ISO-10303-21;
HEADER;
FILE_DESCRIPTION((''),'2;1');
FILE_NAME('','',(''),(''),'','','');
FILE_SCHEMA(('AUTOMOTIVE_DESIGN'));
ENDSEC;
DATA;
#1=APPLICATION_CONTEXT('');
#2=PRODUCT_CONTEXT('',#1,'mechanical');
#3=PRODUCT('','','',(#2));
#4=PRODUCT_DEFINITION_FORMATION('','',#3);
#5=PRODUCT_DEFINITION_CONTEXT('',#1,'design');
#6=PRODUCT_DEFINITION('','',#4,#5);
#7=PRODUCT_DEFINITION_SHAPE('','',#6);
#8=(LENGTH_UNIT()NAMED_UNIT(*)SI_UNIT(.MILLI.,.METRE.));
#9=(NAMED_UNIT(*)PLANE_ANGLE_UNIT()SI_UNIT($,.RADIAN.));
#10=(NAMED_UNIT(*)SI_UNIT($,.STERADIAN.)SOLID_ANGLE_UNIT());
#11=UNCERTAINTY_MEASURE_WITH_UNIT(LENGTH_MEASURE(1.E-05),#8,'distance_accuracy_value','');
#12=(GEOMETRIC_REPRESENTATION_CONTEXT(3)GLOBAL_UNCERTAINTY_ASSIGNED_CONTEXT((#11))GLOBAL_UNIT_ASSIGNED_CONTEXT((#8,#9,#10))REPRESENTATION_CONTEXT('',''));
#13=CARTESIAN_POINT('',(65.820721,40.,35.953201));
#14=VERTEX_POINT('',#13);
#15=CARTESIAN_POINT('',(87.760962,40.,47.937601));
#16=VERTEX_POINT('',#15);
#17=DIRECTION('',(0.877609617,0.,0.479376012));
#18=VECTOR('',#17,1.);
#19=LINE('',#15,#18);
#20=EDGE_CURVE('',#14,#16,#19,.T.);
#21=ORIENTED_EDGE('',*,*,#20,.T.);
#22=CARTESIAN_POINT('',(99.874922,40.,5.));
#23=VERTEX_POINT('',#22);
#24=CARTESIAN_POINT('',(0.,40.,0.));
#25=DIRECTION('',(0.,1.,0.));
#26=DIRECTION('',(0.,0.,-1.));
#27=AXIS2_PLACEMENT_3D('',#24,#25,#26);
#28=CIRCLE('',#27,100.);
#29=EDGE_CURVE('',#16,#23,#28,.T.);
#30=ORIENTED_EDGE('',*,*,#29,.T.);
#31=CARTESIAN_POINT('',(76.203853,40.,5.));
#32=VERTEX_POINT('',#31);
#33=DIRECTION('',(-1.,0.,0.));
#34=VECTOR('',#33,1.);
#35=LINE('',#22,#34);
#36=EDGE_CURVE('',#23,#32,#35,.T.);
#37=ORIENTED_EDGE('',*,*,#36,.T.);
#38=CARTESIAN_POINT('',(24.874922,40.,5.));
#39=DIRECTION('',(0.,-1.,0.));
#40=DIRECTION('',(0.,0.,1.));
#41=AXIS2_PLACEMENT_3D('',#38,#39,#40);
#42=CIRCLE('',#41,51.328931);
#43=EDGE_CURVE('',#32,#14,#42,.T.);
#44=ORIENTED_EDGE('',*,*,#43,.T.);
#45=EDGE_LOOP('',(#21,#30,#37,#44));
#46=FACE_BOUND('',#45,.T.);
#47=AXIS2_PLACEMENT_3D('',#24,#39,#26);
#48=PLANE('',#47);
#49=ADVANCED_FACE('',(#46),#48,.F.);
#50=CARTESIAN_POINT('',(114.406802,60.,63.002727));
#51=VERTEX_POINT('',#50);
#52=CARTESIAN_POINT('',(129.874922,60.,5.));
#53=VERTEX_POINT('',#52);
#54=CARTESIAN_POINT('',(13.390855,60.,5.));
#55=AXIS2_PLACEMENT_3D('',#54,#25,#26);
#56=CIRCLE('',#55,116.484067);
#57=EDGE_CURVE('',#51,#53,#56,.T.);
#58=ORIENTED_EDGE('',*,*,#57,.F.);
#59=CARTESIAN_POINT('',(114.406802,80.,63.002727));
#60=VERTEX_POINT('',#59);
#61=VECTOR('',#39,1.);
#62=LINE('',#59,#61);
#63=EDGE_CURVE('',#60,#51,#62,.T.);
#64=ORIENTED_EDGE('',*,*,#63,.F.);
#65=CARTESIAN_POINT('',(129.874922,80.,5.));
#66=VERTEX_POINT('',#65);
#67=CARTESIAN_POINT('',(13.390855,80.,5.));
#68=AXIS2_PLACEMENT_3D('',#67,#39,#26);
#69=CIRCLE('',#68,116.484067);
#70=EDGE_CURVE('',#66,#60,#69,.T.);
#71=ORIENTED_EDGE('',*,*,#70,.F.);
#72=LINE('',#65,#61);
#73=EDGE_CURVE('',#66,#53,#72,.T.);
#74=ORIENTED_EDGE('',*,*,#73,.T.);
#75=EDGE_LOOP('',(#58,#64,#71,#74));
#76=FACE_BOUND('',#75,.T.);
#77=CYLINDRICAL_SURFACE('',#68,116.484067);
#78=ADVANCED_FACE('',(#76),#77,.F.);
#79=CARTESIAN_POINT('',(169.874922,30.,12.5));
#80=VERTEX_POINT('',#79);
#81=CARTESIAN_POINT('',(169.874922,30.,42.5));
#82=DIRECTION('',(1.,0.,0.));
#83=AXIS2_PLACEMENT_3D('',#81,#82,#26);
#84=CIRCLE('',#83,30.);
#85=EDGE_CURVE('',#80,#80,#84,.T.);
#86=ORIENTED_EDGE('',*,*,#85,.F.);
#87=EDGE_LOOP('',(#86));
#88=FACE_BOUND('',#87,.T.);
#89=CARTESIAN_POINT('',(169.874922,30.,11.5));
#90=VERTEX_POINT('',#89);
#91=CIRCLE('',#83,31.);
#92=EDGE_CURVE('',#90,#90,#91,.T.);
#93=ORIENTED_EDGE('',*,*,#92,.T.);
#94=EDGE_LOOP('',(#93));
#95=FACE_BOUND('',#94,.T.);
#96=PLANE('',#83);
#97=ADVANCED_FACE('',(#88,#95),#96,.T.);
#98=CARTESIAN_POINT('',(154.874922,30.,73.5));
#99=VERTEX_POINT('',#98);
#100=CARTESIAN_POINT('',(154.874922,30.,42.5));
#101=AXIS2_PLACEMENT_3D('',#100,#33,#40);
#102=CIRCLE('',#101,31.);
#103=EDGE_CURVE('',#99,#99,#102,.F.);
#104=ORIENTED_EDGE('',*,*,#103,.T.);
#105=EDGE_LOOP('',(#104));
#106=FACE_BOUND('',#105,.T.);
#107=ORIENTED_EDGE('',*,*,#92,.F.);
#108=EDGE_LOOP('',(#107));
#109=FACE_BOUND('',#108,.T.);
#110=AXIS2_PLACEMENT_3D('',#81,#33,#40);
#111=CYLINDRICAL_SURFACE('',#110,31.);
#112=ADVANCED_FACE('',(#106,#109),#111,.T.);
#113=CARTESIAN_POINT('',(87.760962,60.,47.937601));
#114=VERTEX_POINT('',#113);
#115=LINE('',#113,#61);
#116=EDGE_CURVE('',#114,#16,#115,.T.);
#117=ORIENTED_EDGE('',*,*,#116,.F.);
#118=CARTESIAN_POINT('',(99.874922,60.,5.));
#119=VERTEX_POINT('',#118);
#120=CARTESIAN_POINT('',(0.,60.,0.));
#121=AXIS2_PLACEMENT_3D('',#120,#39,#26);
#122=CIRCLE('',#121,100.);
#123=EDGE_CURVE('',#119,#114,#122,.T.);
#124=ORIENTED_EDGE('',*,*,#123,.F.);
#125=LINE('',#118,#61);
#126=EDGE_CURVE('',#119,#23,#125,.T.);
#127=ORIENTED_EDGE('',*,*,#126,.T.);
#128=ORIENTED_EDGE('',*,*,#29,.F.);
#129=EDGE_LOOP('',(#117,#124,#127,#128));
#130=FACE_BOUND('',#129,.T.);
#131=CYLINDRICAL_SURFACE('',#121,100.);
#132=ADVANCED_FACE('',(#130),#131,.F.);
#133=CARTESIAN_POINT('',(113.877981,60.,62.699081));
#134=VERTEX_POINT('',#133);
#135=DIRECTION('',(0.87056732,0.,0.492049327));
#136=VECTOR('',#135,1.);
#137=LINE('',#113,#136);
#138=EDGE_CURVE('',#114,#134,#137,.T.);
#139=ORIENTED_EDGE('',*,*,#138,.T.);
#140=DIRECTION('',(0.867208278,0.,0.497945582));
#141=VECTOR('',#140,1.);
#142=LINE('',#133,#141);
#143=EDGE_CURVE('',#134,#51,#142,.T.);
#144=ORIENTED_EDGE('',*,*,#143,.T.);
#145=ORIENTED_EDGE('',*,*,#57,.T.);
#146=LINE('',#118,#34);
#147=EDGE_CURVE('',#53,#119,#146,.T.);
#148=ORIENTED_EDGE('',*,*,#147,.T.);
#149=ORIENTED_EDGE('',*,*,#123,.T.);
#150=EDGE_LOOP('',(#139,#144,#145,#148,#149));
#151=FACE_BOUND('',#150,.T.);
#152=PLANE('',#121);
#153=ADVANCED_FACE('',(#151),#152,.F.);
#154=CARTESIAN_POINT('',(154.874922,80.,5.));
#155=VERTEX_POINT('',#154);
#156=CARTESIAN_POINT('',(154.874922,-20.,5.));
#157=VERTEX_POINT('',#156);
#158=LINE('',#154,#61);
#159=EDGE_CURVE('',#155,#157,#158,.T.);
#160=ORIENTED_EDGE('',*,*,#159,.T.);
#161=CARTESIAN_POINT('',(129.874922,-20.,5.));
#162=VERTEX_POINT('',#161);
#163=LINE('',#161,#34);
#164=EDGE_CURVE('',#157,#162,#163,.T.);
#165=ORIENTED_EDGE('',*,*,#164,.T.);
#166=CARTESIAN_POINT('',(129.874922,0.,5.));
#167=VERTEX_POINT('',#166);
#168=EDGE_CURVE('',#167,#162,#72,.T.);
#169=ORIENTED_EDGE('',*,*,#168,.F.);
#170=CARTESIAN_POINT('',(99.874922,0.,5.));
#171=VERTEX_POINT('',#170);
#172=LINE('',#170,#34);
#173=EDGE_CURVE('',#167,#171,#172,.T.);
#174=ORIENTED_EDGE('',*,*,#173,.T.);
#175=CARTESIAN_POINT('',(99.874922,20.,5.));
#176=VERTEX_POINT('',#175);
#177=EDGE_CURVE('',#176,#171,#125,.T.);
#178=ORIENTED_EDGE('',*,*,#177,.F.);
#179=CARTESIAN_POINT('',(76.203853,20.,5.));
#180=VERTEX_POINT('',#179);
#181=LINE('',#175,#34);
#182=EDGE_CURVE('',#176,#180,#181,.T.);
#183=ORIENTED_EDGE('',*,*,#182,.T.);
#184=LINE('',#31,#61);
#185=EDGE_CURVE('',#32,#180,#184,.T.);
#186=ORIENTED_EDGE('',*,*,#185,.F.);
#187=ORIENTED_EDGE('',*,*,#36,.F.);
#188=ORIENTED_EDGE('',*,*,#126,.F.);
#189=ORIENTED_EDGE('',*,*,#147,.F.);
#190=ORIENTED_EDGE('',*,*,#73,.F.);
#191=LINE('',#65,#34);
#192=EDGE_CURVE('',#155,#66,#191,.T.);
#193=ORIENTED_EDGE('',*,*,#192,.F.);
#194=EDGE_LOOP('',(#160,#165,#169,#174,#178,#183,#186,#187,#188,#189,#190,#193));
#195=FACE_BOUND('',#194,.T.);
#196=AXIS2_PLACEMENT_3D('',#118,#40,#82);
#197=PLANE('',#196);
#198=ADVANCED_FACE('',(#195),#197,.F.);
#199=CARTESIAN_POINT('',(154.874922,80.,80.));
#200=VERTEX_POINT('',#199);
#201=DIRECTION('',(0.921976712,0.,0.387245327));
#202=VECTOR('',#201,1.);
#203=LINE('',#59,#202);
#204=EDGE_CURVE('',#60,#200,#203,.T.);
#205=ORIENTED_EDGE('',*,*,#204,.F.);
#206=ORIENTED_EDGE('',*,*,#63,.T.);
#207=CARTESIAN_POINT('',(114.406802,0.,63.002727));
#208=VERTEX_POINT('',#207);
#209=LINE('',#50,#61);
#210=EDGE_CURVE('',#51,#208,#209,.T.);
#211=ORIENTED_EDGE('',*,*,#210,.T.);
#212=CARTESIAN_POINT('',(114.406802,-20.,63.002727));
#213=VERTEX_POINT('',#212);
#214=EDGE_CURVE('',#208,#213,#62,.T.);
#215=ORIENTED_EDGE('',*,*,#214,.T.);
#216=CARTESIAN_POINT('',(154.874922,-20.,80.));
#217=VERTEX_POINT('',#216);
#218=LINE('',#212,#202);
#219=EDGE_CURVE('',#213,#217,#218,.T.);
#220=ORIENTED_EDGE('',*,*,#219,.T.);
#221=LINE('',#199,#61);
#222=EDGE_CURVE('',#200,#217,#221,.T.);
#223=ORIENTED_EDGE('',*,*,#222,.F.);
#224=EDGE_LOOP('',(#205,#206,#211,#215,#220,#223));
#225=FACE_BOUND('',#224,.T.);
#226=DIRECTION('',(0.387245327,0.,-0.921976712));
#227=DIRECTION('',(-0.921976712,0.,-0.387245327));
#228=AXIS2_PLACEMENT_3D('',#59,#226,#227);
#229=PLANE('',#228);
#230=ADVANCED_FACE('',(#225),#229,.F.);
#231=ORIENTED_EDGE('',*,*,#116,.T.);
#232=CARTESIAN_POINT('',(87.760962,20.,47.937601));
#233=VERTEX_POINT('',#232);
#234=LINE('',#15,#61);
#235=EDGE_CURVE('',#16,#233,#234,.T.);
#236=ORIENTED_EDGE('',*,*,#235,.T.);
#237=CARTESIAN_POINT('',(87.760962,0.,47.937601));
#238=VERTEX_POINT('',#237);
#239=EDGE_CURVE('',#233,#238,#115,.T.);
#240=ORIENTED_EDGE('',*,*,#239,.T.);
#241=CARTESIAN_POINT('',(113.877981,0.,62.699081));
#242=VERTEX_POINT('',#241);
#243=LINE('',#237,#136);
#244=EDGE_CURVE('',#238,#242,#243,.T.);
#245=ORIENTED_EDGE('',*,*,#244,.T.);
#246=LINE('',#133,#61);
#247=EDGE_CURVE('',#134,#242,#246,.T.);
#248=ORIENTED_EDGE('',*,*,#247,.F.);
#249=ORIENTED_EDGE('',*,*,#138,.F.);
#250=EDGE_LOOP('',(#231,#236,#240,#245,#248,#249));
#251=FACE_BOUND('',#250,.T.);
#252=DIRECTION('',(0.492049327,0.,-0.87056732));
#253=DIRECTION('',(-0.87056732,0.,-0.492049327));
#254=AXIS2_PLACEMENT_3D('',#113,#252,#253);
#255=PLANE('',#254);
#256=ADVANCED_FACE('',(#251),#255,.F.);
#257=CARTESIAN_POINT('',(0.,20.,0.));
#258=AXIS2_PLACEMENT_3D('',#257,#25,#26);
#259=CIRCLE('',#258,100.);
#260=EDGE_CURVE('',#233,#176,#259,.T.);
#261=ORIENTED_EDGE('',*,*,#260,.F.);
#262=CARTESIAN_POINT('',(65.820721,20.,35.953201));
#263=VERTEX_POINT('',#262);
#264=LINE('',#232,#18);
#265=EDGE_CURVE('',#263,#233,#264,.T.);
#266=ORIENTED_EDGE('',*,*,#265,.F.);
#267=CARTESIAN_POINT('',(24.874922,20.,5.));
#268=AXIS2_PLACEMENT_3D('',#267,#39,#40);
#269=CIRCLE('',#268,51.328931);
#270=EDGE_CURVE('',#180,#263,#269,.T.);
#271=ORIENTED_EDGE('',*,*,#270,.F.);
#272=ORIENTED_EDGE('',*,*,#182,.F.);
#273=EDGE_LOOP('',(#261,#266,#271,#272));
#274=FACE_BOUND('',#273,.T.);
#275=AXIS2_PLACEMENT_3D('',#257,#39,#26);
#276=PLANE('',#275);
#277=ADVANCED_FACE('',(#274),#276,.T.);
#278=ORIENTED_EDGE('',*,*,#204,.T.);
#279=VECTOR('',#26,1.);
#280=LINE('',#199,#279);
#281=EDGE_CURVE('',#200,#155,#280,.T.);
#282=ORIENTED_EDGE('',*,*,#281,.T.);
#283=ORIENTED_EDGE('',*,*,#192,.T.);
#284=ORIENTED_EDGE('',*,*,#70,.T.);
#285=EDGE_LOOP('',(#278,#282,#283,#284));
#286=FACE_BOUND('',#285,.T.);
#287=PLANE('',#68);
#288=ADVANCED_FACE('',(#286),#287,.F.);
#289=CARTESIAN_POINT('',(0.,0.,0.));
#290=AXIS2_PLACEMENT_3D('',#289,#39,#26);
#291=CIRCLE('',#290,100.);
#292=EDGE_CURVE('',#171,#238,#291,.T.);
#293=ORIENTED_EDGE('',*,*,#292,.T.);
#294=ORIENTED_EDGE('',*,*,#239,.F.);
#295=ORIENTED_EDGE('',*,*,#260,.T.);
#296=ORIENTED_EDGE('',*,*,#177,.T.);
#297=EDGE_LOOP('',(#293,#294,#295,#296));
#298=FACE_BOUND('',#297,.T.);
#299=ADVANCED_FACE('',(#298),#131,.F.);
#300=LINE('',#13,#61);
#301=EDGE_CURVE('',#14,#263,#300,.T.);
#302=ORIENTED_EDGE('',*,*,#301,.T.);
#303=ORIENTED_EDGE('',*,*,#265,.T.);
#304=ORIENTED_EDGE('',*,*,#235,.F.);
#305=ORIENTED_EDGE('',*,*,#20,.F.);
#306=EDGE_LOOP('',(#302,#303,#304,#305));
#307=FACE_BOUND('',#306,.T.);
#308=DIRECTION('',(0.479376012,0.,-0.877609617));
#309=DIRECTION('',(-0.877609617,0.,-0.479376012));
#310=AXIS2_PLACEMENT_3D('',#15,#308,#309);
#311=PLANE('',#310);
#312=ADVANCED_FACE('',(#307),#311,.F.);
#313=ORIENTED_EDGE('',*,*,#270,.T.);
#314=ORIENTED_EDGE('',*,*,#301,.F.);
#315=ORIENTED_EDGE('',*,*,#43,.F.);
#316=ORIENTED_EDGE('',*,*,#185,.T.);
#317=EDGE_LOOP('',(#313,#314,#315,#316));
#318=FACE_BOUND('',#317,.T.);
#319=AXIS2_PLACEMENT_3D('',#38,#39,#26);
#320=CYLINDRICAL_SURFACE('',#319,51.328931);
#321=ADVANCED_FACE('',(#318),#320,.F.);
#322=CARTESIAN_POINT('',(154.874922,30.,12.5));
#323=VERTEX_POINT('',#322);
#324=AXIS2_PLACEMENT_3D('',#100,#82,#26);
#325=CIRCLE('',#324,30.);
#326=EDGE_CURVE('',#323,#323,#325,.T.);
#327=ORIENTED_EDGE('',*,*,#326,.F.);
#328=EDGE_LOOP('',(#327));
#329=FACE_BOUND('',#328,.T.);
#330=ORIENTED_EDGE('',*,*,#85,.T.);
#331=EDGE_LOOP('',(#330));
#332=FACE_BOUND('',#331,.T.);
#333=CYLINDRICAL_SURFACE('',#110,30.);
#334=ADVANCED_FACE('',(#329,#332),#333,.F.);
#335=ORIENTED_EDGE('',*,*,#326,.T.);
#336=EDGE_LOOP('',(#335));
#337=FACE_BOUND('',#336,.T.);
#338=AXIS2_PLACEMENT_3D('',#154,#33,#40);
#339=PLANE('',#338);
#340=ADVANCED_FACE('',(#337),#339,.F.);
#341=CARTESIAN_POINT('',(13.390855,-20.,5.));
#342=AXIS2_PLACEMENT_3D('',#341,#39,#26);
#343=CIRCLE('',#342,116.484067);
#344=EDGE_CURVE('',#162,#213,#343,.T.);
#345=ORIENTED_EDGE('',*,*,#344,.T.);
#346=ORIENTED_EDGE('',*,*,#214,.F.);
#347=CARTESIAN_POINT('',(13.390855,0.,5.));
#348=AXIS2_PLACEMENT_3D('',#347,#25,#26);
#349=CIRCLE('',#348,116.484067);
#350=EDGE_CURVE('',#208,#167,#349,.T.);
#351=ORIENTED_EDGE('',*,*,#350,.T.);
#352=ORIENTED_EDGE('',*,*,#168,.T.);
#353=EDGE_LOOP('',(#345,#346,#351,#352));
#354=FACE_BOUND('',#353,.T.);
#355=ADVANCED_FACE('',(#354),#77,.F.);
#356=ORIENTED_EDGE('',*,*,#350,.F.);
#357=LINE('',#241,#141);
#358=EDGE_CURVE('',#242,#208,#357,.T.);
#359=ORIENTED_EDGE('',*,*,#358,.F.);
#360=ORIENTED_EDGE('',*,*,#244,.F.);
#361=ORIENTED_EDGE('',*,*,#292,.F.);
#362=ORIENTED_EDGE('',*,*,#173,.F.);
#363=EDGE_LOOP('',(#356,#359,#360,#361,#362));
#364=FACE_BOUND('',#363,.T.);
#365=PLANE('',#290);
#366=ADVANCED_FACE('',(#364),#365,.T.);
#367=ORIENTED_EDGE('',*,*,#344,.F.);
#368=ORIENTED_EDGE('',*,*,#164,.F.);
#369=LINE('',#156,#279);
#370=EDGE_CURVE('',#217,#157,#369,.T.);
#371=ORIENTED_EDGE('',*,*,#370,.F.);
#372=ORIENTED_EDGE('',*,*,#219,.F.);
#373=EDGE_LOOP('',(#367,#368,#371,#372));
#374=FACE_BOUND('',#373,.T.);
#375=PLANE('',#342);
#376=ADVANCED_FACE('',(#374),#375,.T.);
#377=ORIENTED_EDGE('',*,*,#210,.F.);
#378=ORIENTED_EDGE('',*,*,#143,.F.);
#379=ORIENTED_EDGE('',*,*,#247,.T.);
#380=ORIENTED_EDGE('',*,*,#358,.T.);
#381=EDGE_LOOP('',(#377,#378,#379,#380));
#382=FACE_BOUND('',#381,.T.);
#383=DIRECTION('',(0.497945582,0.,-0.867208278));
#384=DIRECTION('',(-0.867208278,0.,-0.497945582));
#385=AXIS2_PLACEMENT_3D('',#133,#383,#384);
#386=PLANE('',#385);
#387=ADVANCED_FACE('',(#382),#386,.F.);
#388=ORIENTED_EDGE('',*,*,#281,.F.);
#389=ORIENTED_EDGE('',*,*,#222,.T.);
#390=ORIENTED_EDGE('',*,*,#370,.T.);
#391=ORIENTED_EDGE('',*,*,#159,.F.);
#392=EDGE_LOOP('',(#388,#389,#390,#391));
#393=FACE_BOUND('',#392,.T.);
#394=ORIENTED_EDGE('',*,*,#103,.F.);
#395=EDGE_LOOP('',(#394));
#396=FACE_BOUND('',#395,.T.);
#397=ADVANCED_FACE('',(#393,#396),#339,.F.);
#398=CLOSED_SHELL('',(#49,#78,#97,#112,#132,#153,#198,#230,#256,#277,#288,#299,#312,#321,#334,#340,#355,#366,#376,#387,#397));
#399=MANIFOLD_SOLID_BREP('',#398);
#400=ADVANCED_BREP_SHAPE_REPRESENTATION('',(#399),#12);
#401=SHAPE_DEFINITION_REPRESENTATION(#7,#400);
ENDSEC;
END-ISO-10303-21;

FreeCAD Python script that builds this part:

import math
import FreeCAD as App
import Part
import Sketcher

doc = App.newDocument("Part")
body = doc.addObject("PartDesign::Body", "Body")

sketch1 = body.newObject("Sketcher::SketchObject", "Sketch")
sketch1.AttachmentSupport = (doc.getObject("XZ_Plane"), [""])
sketch1.MapMode = "FlatFace"
sketch1.addGeometry(Part.LineSegment(App.Vector(87.8, 47.9, 0), App.Vector(113.9, 62.7, 0)), False)
sketch1.addGeometry(Part.LineSegment(App.Vector(113.9, 62.7, 0), App.Vector(114.4, 63, 0)), False)
sketch1.addGeometry(Part.ArcOfCircle(Part.Circle(App.Vector(13.4, 5, 0), App.Vector(0, 0, 1), 116.5), math.radians(0), math.radians(30)), False)
sketch1.addGeometry(Part.LineSegment(App.Vector(129.9, 5, 0), App.Vector(99.9, 5, 0)), False)
sketch1.addGeometry(Part.ArcOfCircle(Part.Circle(App.Vector(0, 0, 0), App.Vector(0, 0, 1), 100), math.radians(2.87), math.radians(16.34)), False)
sketch1.addGeometry(Part.ArcOfCircle(Part.Circle(App.Vector(0, 0, 0), App.Vector(0, 0, 1), 100), math.radians(16.34), math.radians(28.64)), False)
sketch1.addConstraint(Sketcher.Constraint("Coincident", 0, 2, 1, 1))
sketch1.addConstraint(Sketcher.Constraint("Coincident", 1, 2, 2, 2))
sketch1.addConstraint(Sketcher.Constraint("Coincident", 2, 1, 3, 1))
sketch1.addConstraint(Sketcher.Constraint("Coincident", 3, 2, 4, 1))
sketch1.addConstraint(Sketcher.Constraint("Tangent", 4, 2, 5, 1))
sketch1.addConstraint(Sketcher.Constraint("Coincident", 5, 2, 0, 1))
sketch1.addConstraint(Sketcher.Constraint("Horizontal", 3))
sketch1.addConstraint(Sketcher.Constraint("Coincident", 4, 3, -1, 1))
sketch1.addConstraint(Sketcher.Constraint("Equal", 4, 5))
sketch1.addConstraint(Sketcher.Constraint("Radius", 4, 100.0))
sketch1.addConstraint(Sketcher.Constraint("DistanceX", 3, 2, 3, 1, 30.0))
sketch1.addConstraint(Sketcher.Constraint("Distance", 0, 30.0))
sketch1.addConstraint(Sketcher.Constraint("DistanceY", -1, 1, 2, 3, 5.0))
sketch1.addConstraint(Sketcher.Constraint("DistanceY", -1, 1, 2, 1, 5.0))
sketch1.addConstraint(Sketcher.Constraint("Radius", 2, 116.484067))
sketch1.addConstraint(Sketcher.Constraint("DistanceX", -1, 1, 1, 2, 114.406802))
sketch1.addConstraint(Sketcher.Constraint("DistanceY", -1, 1, 5, 2, 47.937601))
sketch1.addConstraint(Sketcher.Constraint("DistanceX", -1, 1, 0, 2, 113.877981))
sketch1.addConstraint(Sketcher.Constraint("DistanceY", -1, 1, 4, 2, 28.13223))
pad1 = body.newObject("PartDesign::Pad", "Pad")
pad1.Profile = sketch1
pad1.Length = 60
pad1.Reversed = True

sketch2 = body.newObject("Sketcher::SketchObject", "Sketch001")
sketch2.AttachmentSupport = (doc.getObject("XZ_Plane"), [""])
sketch2.MapMode = "FlatFace"
sketch2.AttachmentOffset = App.Placement(App.Vector(0, 0, -30), App.Rotation())
sketch2.addGeometry(Part.LineSegment(App.Vector(66, 36, 0), App.Vector(88, 48, 0)), False)
sketch2.addGeometry(Part.ArcOfCircle(Part.Circle(App.Vector(0, 0, 0), App.Vector(0, 0, 1), 100), math.radians(3), math.radians(29)), False)
sketch2.addGeometry(Part.LineSegment(App.Vector(100, 5, 0), App.Vector(76, 5, 0)), False)
sketch2.addGeometry(Part.ArcOfCircle(Part.Circle(App.Vector(25, 5, 0), App.Vector(0, 0, 1), 51), math.radians(0), math.radians(37)), False)
sketch2.addConstraint(Sketcher.Constraint("Coincident", 0, 2, 1, 2))
sketch2.addConstraint(Sketcher.Constraint("Coincident", 1, 1, 2, 1))
sketch2.addConstraint(Sketcher.Constraint("Coincident", 2, 2, 3, 1))
sketch2.addConstraint(Sketcher.Constraint("Coincident", 3, 2, 0, 1))
sketch2.addConstraint(Sketcher.Constraint("Horizontal", 2))
sketch2.addConstraint(Sketcher.Constraint("Coincident", 1, 3, -1, 1))
sketch2.addConstraint(Sketcher.Constraint("Horizontal", 3, 3, 1, 1))
sketch2.addConstraint(Sketcher.Constraint("Radius", 1, 100.0))
sketch2.addConstraint(Sketcher.Constraint("Distance", 0, 25.0))
sketch2.addConstraint(Sketcher.Constraint("DistanceY", -1, 1, 3, 3, 5.0))
sketch2.addConstraint(Sketcher.Constraint("DistanceX", 3, 3, 1, 1, 75.0))
sketch2.addConstraint(Sketcher.Constraint("Radius", 3, 51.328931))
sketch2.addConstraint(Sketcher.Constraint("DistanceY", -1, 1, 0, 2, 47.937601))
pad2 = body.newObject("PartDesign::Pad", "Pad001")
pad2.Profile = sketch2
pad2.Length = 20
pad2.Midplane = True

sketch3 = body.newObject("Sketcher::SketchObject", "Sketch002")
sketch3.AttachmentSupport = (doc.getObject("XZ_Plane"), [""])
sketch3.MapMode = "FlatFace"
sketch3.AttachmentOffset = App.Placement(App.Vector(0, 0, -30), App.Rotation())
sketch3.addGeometry(Part.LineSegment(App.Vector(155, 5, 0), App.Vector(130, 5, 0)), False)
sketch3.addGeometry(Part.ArcOfCircle(Part.Circle(App.Vector(13, 5, 0), App.Vector(0, 0, 1), 116), math.radians(0), math.radians(30)), False)
sketch3.addGeometry(Part.LineSegment(App.Vector(114, 63, 0), App.Vector(155, 80, 0)), False)
sketch3.addGeometry(Part.LineSegment(App.Vector(155, 80, 0), App.Vector(155, 5, 0)), False)
sketch3.addConstraint(Sketcher.Constraint("Coincident", 0, 2, 1, 1))
sketch3.addConstraint(Sketcher.Constraint("Coincident", 1, 2, 2, 1))
sketch3.addConstraint(Sketcher.Constraint("Coincident", 2, 2, 3, 1))
sketch3.addConstraint(Sketcher.Constraint("Coincident", 3, 2, 0, 1))
sketch3.addConstraint(Sketcher.Constraint("Horizontal", 0))
sketch3.addConstraint(Sketcher.Constraint("Vertical", 3))
sketch3.addConstraint(Sketcher.Constraint("Horizontal", 1, 3, 0, 2))
sketch3.addConstraint(Sketcher.Constraint("DistanceX", 0, 2, 0, 1, 25.0))
sketch3.addConstraint(Sketcher.Constraint("DistanceY", 3, 2, 3, 1, 75.0))
sketch3.addConstraint(Sketcher.Constraint("DistanceY", -1, 1, 1, 3, 5.0))
sketch3.addConstraint(Sketcher.Constraint("Radius", 1, 116.484067))
sketch3.addConstraint(Sketcher.Constraint("DistanceX", -1, 1, 1, 2, 114.406802))
sketch3.addConstraint(Sketcher.Constraint("Distance", 2, 43.892779))
pad3 = body.newObject("PartDesign::Pad", "Pad002")
pad3.Profile = sketch3
pad3.Length = 100
pad3.Midplane = True

sketch4 = body.newObject("Sketcher::SketchObject", "Sketch003")
sketch4.AttachmentSupport = (doc.getObject("YZ_Plane"), [""])
sketch4.MapMode = "FlatFace"
sketch4.AttachmentOffset = App.Placement(App.Vector(0, 0, 154.874922), App.Rotation())
sketch4.addGeometry(Part.Circle(App.Vector(30, 42, 0), App.Vector(0, 0, 1), 31), False)
sketch4.addGeometry(Part.Circle(App.Vector(30, 42, 0), App.Vector(0, 0, 1), 30), False)
sketch4.addConstraint(Sketcher.Constraint("Coincident", 1, 3, 0, 3))
sketch4.addConstraint(Sketcher.Constraint("Diameter", 0, 62.0))
sketch4.addConstraint(Sketcher.Constraint("Diameter", 1, 60.0))
sketch4.addConstraint(Sketcher.Constraint("DistanceX", -1, 1, 0, 3, 30.0))
sketch4.addConstraint(Sketcher.Constraint("DistanceY", -1, 1, 0, 3, 42.5))
pad4 = body.newObject("PartDesign::Pad", "Pad003")
pad4.Profile = sketch4
pad4.Length = 15

doc.recompute()
